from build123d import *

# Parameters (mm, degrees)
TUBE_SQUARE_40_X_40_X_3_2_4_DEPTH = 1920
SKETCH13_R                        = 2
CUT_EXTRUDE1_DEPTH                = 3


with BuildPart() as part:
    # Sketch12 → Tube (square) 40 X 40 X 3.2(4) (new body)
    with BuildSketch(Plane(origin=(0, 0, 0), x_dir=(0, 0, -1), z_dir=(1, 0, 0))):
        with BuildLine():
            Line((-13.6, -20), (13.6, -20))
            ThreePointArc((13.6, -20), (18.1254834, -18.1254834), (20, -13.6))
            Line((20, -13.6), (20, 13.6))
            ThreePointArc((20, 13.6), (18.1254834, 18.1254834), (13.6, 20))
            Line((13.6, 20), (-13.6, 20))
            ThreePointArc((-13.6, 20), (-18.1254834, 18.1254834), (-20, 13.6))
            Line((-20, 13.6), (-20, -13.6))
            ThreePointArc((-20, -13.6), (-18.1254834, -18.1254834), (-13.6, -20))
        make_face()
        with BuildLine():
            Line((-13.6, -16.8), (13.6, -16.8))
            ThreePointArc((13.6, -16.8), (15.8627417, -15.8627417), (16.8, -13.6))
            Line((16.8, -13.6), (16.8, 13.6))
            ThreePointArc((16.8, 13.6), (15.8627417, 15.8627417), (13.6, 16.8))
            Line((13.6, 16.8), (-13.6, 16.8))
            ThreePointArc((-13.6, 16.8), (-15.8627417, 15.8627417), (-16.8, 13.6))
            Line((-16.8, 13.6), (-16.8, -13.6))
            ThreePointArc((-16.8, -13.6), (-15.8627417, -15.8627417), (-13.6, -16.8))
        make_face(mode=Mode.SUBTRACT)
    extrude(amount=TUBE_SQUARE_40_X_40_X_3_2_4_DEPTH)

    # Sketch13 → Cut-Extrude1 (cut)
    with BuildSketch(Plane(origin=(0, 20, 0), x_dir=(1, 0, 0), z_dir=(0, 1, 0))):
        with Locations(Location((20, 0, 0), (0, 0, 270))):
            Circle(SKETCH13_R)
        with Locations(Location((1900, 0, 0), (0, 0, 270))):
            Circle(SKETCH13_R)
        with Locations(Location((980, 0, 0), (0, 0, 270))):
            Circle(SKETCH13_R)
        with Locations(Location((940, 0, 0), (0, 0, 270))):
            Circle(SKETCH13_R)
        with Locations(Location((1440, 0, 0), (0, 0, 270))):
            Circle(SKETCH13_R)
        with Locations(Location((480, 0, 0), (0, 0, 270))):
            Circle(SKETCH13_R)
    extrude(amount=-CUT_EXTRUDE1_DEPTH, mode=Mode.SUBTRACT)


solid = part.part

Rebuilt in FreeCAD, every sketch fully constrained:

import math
import FreeCAD as App
import Part
import Sketcher

V = App.Vector
Q = App.Units.Quantity

doc = App.newDocument("Part")
body = doc.addObject("PartDesign::Body", "Body")

# Sketch on YZ plane
sketch1 = doc.addObject("Sketcher::SketchObject", "Sketch")
body.addObject(sketch1)
sketch1.AttachmentSupport = (doc.YZ_Plane, [""])
sketch1.MapMode = "FlatFace"
sketch1.addGeometry([
    Part.LineSegment(V(-20, 13.6, 0), V(-20, -13.6, 0)),  # 0
    Part.ArcOfCircle(Part.Circle(V(-13.6, -13.6, 0), V(0, 0, 1), 6.4), math.radians(180), math.radians(270)),  # 1
    Part.LineSegment(V(-13.6, -20, 0), V(13.6, -20, 0)),  # 2
    Part.ArcOfCircle(Part.Circle(V(13.6, -13.6, 0), V(0, 0, 1), 6.4), math.radians(-90), math.radians(0)),  # 3
    Part.LineSegment(V(20, -13.6, 0), V(20, 13.6, 0)),  # 4
    Part.ArcOfCircle(Part.Circle(V(13.6, 13.6, 0), V(0, 0, 1), 6.4), math.radians(0), math.radians(90)),  # 5
    Part.LineSegment(V(13.6, 20, 0), V(-13.6, 20, 0)),  # 6
    Part.ArcOfCircle(Part.Circle(V(-13.6, 13.6, 0), V(0, 0, 1), 6.4), math.radians(90), math.radians(180)),  # 7
    Part.LineSegment(V(-16.8, -13.6, 0), V(-16.8, 13.6, 0)),  # 8
    Part.ArcOfCircle(Part.Circle(V(-13.6, 13.6, 0), V(0, 0, 1), 3.2), math.radians(90), math.radians(180)),  # 9
    Part.LineSegment(V(-13.6, 16.8, 0), V(13.6, 16.8, 0)),  # 10
    Part.ArcOfCircle(Part.Circle(V(13.6, 13.6, 0), V(0, 0, 1), 3.2), math.radians(0), math.radians(90)),  # 11
    Part.LineSegment(V(16.8, 13.6, 0), V(16.8, -13.6, 0)),  # 12
    Part.ArcOfCircle(Part.Circle(V(13.6, -13.6, 0), V(0, 0, 1), 3.2), math.radians(-90), math.radians(0)),  # 13
    Part.LineSegment(V(13.6, -16.8, 0), V(-13.6, -16.8, 0)),  # 14
    Part.ArcOfCircle(Part.Circle(V(-13.6, -13.6, 0), V(0, 0, 1), 3.2), math.radians(180), math.radians(270)),  # 15
], False)
sketch1.addConstraint([
    Sketcher.Constraint("Tangent", 0, 2, 1, 1),
    Sketcher.Constraint("Tangent", 1, 2, 2, 1),
    Sketcher.Constraint("Tangent", 2, 2, 3, 1),
    Sketcher.Constraint("Tangent", 3, 2, 4, 1),
    Sketcher.Constraint("Tangent", 4, 2, 5, 1),
    Sketcher.Constraint("Tangent", 5, 2, 6, 1),
    Sketcher.Constraint("Tangent", 6, 2, 7, 1),
    Sketcher.Constraint("Tangent", 7, 2, 0, 1),
    Sketcher.Constraint("Tangent", 8, 2, 9, 2),
    Sketcher.Constraint("Tangent", 9, 1, 10, 1),
    Sketcher.Constraint("Tangent", 10, 2, 11, 2),
    Sketcher.Constraint("Tangent", 11, 1, 12, 1),
    Sketcher.Constraint("Tangent", 12, 2, 13, 2),
    Sketcher.Constraint("Tangent", 13, 1, 14, 1),
    Sketcher.Constraint("Tangent", 14, 2, 15, 2),
    Sketcher.Constraint("Tangent", 15, 1, 8, 1),
    Sketcher.Constraint("Vertical", 0),
    Sketcher.Constraint("Horizontal", 2),
    Sketcher.Constraint("Vertical", 4),
    Sketcher.Constraint("Horizontal", 6),
    Sketcher.Constraint("Vertical", 8),
    Sketcher.Constraint("Horizontal", 10),
    Sketcher.Constraint("Vertical", 12),
    Sketcher.Constraint("Horizontal", 14),
    Sketcher.Constraint("Coincident", 9, 3, 7, 3),
    Sketcher.Constraint("Coincident", 11, 3, 5, 3),
    Sketcher.Constraint("Coincident", 13, 3, 3, 3),
    Sketcher.Constraint("Equal", 1, 3),
    Sketcher.Constraint("Equal", 3, 5),
    Sketcher.Constraint("Equal", 5, 7),
    Sketcher.Constraint("Equal", 13, 15),
    Sketcher.Constraint("Symmetric", 1, 3, 5, 3, -1, 1),
    Sketcher.Constraint("Equal", 14, 0),
    Sketcher.Constraint("Radius", 1, Q("6.4 mm")),
    Sketcher.Constraint("Radius", 9, Q("3.2 mm")),
    Sketcher.Constraint("DistanceX", 2, 1, 2, 2, Q("27.2 mm")),
])
pad1 = doc.addObject("PartDesign::Pad", "Pad")
body.addObject(pad1)
pad1.Profile = sketch1
pad1.Length = 1920

# Sketch on XZ plane
sketch2 = doc.addObject("Sketcher::SketchObject", "Sketch001")
body.addObject(sketch2)
sketch2.AttachmentSupport = (doc.XZ_Plane, [""])
sketch2.MapMode = "FlatFace"
sketch2.AttachmentOffset = App.Placement(V(0, 0, -20), App.Rotation())
sketch2.addGeometry([
    Part.Circle(V(20, 0, 0), V(0, 0, 1), 2),  # 0
    Part.Circle(V(1900, 0, 0), V(0, 0, 1), 2),  # 1
    Part.Circle(V(980, 0, 0), V(0, 0, 1), 2),  # 2
    Part.Circle(V(940, 0, 0), V(0, 0, 1), 2),  # 3
    Part.Circle(V(1440, 0, 0), V(0, 0, 1), 2),  # 4
    Part.Circle(V(480, 0, 0), V(0, 0, 1), 2),  # 5
], False)
sketch2.addConstraint([
    Sketcher.Constraint("Equal", 0, 1),
    Sketcher.Constraint("Equal", 1, 2),
    Sketcher.Constraint("Equal", 2, 3),
    Sketcher.Constraint("Equal", 3, 4),
    Sketcher.Constraint("Equal", 4, 5),
    Sketcher.Constraint("PointOnObject", 0, 3, -1),
    Sketcher.Constraint("PointOnObject", 1, 3, -1),
    Sketcher.Constraint("PointOnObject", 2, 3, -1),
    Sketcher.Constraint("PointOnObject", 3, 3, -1),
    Sketcher.Constraint("PointOnObject", 4, 3, -1),
    Sketcher.Constraint("PointOnObject", 5, 3, -1),
    Sketcher.Constraint("Diameter", 0, Q("4 mm")),
    Sketcher.Constraint("DistanceX", -1, 1, 0, 3, Q("20 mm")),
    Sketcher.Constraint("DistanceX", -1, 1, 1, 3, Q("1900 mm")),
    Sketcher.Constraint("DistanceX", -1, 1, 2, 3, Q("980 mm")),
    Sketcher.Constraint("DistanceX", -1, 1, 3, 3, Q("940 mm")),
    Sketcher.Constraint("DistanceX", -1, 1, 4, 3, Q("1440 mm")),
    Sketcher.Constraint("DistanceX", -1, 1, 5, 3, Q("480 mm")),
])
pocket1 = doc.addObject("PartDesign::Pocket", "Pocket")
body.addObject(pocket1)
pocket1.Profile = sketch2
pocket1.Length = 3
pocket1.Reversed = True

doc.recompute()
